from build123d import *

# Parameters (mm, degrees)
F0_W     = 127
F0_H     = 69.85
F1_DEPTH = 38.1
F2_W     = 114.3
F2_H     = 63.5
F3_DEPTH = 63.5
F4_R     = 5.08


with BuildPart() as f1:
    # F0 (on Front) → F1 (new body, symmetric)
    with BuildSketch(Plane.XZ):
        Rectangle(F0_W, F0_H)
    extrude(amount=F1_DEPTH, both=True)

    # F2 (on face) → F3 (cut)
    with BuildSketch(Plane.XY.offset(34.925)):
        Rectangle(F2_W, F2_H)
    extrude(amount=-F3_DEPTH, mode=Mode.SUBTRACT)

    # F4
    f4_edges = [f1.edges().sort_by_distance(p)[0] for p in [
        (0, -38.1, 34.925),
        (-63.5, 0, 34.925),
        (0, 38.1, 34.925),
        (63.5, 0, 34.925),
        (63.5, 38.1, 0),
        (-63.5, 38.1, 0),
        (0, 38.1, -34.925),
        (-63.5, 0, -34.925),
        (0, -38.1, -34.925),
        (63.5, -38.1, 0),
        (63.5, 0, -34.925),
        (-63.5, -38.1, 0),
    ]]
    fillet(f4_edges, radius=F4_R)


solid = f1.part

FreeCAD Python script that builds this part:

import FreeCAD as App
import Part
import Sketcher
Q = App.Units.Quantity


def edges_at(feature, points):
    """Names of the edges that pass closest to the given points."""
    edges = feature.Shape.Edges
    near = lambda p: min(range(len(edges)), key=lambda i: edges[i].distToShape(Part.Vertex(*p))[0])
    return sorted({f"Edge{near(p) + 1}" for p in points})


def add_polygon(sketch, points):
    """Adds a closed chain of lines whose ends are joined by coincident constraints."""
    first, n = sketch.GeometryCount, len(points)
    for a, b in zip(points, points[1:] + points[:1]):
        sketch.addGeometry(Part.LineSegment(App.Vector(*a, 0), App.Vector(*b, 0)), False)
    for i in range(n):
        sketch.addConstraint(Sketcher.Constraint("Coincident", first + i, 2, first + (i + 1) % n, 1))

doc = App.newDocument("Part")
body = doc.addObject("PartDesign::Body", "Body")

# Sketch on XZ plane
sketch1 = body.newObject("Sketcher::SketchObject", "Sketch")
sketch1.AttachmentSupport = (doc.getObject("XZ_Plane"), [""])
sketch1.MapMode = "FlatFace"
add_polygon(sketch1, [(-63.5, 34.925), (-63.5, -34.925), (63.5, -34.925), (63.5, 34.925)])  # lines 0-3
sketch1.addConstraint([
    Sketcher.Constraint("Vertical", 0),
    Sketcher.Constraint("Horizontal", 1),
    Sketcher.Constraint("Vertical", 2),
    Sketcher.Constraint("Horizontal", 3),
    Sketcher.Constraint("Symmetric", 0, 2, 2, 2, -1, 1),
    Sketcher.Constraint("DistanceX", 1, 1, 1, 2, Q("5 in")),
    Sketcher.Constraint("DistanceY", 0, 2, 0, 1, Q("2.75 in")),
])
pad1 = body.newObject("PartDesign::Pad", "Pad")
pad1.Profile = sketch1
pad1.Length = Q("3 in")
pad1.Midplane = True

# Sketch on XY plane
sketch2 = body.newObject("Sketcher::SketchObject", "Sketch001")
sketch2.AttachmentSupport = (doc.getObject("XY_Plane"), [""])
sketch2.MapMode = "FlatFace"
sketch2.AttachmentOffset = App.Placement(App.Vector(0, 0, 1.375 * 25.4), App.Rotation())
add_polygon(sketch2, [(-57.15, 31.75), (-57.15, -31.75), (57.15, -31.75), (57.15, 31.75)])  # lines 0-3
sketch2.addConstraint([
    Sketcher.Constraint("Vertical", 0),
    Sketcher.Constraint("Horizontal", 1),
    Sketcher.Constraint("Vertical", 2),
    Sketcher.Constraint("Horizontal", 3),
    Sketcher.Constraint("Symmetric", 0, 2, 2, 2, -1, 1),
    Sketcher.Constraint("DistanceX", 1, 1, 1, 2, Q("4.5 in")),
    Sketcher.Constraint("DistanceY", 0, 2, 0, 1, Q("2.5 in")),
])
pocket1 = body.newObject("PartDesign::Pocket", "Pocket")
pocket1.Profile = sketch2
pocket1.Length = Q("2.5 in")
doc.recompute()

fillet = body.newObject("PartDesign::Fillet", "Fillet")
fillet.Base = (pocket1, edges_at(pocket1, [
    (0, -38.1, 34.925),
    (-63.5, 0, 34.925),
    (0, 38.1, 34.925),
    (63.5, 0, 34.925),
    (63.5, 38.1, 0),
    (-63.5, 38.1, 0),
    (0, 38.1, -34.925),
    (-63.5, 0, -34.925),
    (0, -38.1, -34.925),
    (63.5, -38.1, 0),
    (63.5, 0, -34.925),
    (-63.5, -38.1, 0),
]))
fillet.Radius = Q("0.2 in")

doc.recompute()
